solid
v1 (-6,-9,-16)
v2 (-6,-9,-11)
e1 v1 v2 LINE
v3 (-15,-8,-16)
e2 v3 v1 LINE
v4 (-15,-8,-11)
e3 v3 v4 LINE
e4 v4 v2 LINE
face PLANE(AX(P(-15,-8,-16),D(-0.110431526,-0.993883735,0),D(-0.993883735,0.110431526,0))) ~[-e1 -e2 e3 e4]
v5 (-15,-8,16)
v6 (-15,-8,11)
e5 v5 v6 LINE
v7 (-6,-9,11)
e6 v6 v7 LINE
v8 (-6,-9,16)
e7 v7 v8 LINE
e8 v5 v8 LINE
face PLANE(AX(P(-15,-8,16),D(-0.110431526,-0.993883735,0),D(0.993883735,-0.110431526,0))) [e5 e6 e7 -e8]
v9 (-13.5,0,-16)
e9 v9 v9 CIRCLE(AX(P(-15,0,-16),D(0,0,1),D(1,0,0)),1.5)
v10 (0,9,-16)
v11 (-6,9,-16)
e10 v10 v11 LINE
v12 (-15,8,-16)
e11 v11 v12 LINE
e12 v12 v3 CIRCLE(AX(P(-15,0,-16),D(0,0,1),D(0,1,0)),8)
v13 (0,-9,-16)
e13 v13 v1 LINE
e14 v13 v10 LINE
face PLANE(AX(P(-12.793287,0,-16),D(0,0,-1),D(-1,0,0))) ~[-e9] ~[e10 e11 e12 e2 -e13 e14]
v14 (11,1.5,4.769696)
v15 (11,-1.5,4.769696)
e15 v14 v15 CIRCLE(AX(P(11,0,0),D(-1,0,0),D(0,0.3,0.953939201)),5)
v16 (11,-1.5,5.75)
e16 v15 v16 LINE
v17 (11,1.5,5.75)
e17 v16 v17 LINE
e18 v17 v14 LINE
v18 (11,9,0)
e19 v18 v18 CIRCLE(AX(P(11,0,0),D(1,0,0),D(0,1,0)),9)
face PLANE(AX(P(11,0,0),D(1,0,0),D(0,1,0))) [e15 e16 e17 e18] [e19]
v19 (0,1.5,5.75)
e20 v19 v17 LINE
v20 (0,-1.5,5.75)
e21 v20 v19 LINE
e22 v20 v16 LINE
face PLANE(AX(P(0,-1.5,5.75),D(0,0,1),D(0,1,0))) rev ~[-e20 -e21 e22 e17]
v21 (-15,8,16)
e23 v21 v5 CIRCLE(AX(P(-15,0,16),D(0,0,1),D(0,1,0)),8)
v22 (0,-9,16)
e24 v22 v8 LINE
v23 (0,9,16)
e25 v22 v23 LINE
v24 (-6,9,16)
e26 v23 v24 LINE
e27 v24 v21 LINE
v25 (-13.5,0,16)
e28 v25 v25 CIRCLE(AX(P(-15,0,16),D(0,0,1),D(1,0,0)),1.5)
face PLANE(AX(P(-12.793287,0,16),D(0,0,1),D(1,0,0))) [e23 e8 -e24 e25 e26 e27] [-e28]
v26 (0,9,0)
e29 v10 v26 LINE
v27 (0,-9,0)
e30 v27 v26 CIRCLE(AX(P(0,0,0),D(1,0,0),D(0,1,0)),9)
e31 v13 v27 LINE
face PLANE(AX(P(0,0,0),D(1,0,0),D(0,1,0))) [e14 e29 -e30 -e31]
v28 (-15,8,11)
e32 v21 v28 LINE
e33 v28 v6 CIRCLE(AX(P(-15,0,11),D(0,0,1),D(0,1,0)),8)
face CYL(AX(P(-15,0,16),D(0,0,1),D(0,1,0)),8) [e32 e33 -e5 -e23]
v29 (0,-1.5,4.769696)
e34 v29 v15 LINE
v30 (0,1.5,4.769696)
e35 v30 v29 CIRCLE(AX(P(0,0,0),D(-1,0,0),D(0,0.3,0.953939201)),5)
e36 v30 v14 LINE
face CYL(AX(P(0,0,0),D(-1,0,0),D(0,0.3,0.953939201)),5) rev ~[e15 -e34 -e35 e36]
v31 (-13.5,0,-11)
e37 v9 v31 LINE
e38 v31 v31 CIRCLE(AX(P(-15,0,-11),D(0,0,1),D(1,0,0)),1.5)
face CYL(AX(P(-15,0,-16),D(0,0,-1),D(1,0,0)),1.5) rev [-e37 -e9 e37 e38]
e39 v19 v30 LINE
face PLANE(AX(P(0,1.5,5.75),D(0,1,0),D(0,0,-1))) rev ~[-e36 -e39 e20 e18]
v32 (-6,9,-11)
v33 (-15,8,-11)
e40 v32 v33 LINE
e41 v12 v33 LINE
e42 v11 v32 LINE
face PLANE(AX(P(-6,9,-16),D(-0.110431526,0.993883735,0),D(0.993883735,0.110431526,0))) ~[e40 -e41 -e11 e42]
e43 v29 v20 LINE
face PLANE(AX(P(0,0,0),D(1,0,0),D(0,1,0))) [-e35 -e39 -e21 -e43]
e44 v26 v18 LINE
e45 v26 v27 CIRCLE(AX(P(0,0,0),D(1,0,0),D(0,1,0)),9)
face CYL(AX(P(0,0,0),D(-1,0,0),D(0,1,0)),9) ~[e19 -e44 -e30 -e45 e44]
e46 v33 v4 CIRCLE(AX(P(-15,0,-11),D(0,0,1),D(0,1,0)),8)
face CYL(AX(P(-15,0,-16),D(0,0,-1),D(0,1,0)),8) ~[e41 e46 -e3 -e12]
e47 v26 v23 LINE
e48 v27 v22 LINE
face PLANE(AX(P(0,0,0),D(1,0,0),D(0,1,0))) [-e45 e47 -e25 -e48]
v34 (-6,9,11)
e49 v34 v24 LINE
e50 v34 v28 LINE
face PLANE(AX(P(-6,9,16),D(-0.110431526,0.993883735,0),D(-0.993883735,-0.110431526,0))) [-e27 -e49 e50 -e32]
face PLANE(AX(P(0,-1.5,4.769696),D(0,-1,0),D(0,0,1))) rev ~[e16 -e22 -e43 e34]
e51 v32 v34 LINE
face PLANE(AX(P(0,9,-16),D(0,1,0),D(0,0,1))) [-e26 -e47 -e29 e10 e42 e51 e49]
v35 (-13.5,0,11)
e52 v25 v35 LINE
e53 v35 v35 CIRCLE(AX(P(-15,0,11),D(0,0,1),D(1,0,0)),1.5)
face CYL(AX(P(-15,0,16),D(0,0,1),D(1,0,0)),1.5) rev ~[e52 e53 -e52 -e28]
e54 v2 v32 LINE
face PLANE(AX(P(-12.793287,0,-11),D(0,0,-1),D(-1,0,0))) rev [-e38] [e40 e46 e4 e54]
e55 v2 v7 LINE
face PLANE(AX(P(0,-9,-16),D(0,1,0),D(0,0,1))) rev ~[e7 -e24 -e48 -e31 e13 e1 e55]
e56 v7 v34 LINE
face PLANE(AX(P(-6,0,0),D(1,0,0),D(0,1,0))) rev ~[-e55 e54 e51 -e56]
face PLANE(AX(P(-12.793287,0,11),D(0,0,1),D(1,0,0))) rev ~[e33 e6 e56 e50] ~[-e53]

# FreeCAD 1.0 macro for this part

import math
import FreeCAD as App
import Part
import Sketcher
Q = App.Units.Quantity

doc = App.newDocument("Part")
params = doc.addObject("Spreadsheet::Sheet", "Params")
for row, (alias, value) in enumerate([
    ("sketch1_width", "18 mm"),
    ("sketch1_height", "32 mm"),
    ("pad1_length", "6 mm"),
    ("sketch2_diameter", "3 mm"),
    ("sketch2_radius", "8 mm"),
    ("sketch2_height", "18 mm"),
    ("pad2_length", "5 mm"),
    ("sketch3_diameter", "18 mm"),
    ("sketch3_radius", "5 mm"),
    ("sketch3_width", "3 mm"),
    ("pad3_length", "11 mm"),
], start=1):
    params.set(f"A{row}", alias)
    params.set(f"B{row}", "=" + value)
    params.setAlias(f"B{row}", alias)

body = doc.addObject("PartDesign::Body", "Body")

# Sketch on YZ plane
sketch1 = doc.addObject("Sketcher::SketchObject", "Sketch")
body.addObject(sketch1)
sketch1.AttachmentSupport = (doc.YZ_Plane, [""])
sketch1.MapMode = "FlatFace"
sketch1.addGeometry([
    Part.LineSegment(App.Vector(-9, 16, 0), App.Vector(-9, -16, 0)),
    Part.LineSegment(App.Vector(-9, -16, 0), App.Vector(9, -16, 0)),
    Part.LineSegment(App.Vector(9, -16, 0), App.Vector(9, 16, 0)),
    Part.LineSegment(App.Vector(9, 16, 0), App.Vector(-9, 16, 0)),
], False)
sketch1.addConstraint([
    Sketcher.Constraint("Coincident", 0, 2, 1, 1),
    Sketcher.Constraint("Coincident", 1, 2, 2, 1),
    Sketcher.Constraint("Coincident", 2, 2, 3, 1),
    Sketcher.Constraint("Coincident", 3, 2, 0, 1),
    Sketcher.Constraint("Vertical", 0),
    Sketcher.Constraint("Horizontal", 1),
    Sketcher.Constraint("Vertical", 2),
    Sketcher.Constraint("Horizontal", 3),
    Sketcher.Constraint("Symmetric", 0, 2, 2, 2, -1, 1),
    Sketcher.Constraint("DistanceX", 1, 1, 1, 2, Q("18 mm")),
    Sketcher.Constraint("DistanceY", 0, 2, 0, 1, Q("32 mm")),
])
sketch1.setExpression("Constraints[9]", "Params.sketch1_width")
sketch1.setExpression("Constraints[10]", "Params.sketch1_height")
pad1 = doc.addObject("PartDesign::Pad", "Pad")
body.addObject(pad1)
pad1.Profile = sketch1
pad1.setExpression("Length", "Params.pad1_length")
pad1.Reversed = True

# Sketch on XY plane
sketch2 = doc.addObject("Sketcher::SketchObject", "Sketch001")
body.addObject(sketch2)
sketch2.AttachmentSupport = (doc.XY_Plane, [""])
sketch2.MapMode = "FlatFace"
sketch2.AttachmentOffset = App.Placement(App.Vector(0, 0, 16), App.Rotation())
sketch2.addGeometry([
    Part.LineSegment(App.Vector(-6, 9, 0), App.Vector(-15, 8, 0)),  # 0
    Part.ArcOfCircle(Part.Circle(App.Vector(-15, 0, 0), App.Vector(0, 0, 1), 8), math.radians(90), math.radians(270)),  # 1
    Part.LineSegment(App.Vector(-15, -8, 0), App.Vector(-6, -9, 0)),  # 2
    Part.LineSegment(App.Vector(-6, -9, 0), App.Vector(-6, 9, 0)),  # 3
    Part.Circle(App.Vector(-15, 0, 0), App.Vector(0, 0, 1), 1.5),  # 4
], False)
sketch2.addConstraint([
    Sketcher.Constraint("Coincident", 0, 2, 1, 1),
    Sketcher.Constraint("Coincident", 1, 2, 2, 1),
    Sketcher.Constraint("Coincident", 2, 2, 3, 1),
    Sketcher.Constraint("Coincident", 3, 2, 0, 1),
    Sketcher.Constraint("Vertical", 3),
    Sketcher.Constraint("Coincident", 4, 3, 1, 3),
    Sketcher.Constraint("Symmetric", 0, 2, 1, 2, -1),
    Sketcher.Constraint("Vertical", 4, 3, 0, 2),
    Sketcher.Constraint("Equal", 0, 2),
    Sketcher.Constraint("Diameter", 4, Q("3 mm")),
    Sketcher.Constraint("Radius", 1, Q("8 mm")),
    Sketcher.Constraint("DistanceY", 3, 1, 3, 2, Q("18 mm")),
    Sketcher.Constraint("DistanceX", 1, 3, -1, 1, Q("15 mm")),
    Sketcher.Constraint("DistanceX", 2, 2, -1, 1, Q("6 mm")),
])
sketch2.setExpression("Constraints[9]", "Params.sketch2_diameter")
sketch2.setExpression("Constraints[10]", "Params.sketch2_radius")
sketch2.setExpression("Constraints[11]", "Params.sketch2_height")
pad2 = doc.addObject("PartDesign::Pad", "Pad001")
body.addObject(pad2)
pad2.Profile = sketch2
pad2.setExpression("Length", "Params.pad2_length")
pad2.Reversed = True
body2 = doc.addObject("PartDesign::Body", "Body001")
doc.recompute()

body2.BaseFeature = body
doc.recompute()

mirroring = doc.addObject("Part::Mirroring", "Mirroring")
mirroring.Source = body
mirroring.Base = App.Vector(0, 0, 0)
mirroring.Normal = App.Vector(0, 0, 1)
body3 = doc.addObject("PartDesign::Body", "Body002")
body3.BaseFeature = mirroring
boolean = doc.addObject("PartDesign::Boolean", "Boolean")
body2.addObject(boolean)
boolean.Type = "Fuse"
boolean.addObjects([body3])
doc.recompute()

# Sketch on YZ plane
sketch3 = doc.addObject("Sketcher::SketchObject", "Sketch002")
body2.addObject(sketch3)
sketch3.AttachmentSupport = (doc.getObject("YZ_Plane001"), [""])
sketch3.MapMode = "FlatFace"
sketch3.addGeometry([
    Part.Circle(App.Vector(0, 0, 0), App.Vector(0, 0, 1), 9),  # 0
    Part.LineSegment(App.Vector(1.5, 5.8, 0), App.Vector(1.5, 4.8, 0)),  # 1
    Part.ArcOfCircle(Part.Circle(App.Vector(0, 0, 0), App.Vector(0, 0, 1), 5), math.radians(107), math.radians(433)),  # 2
    Part.LineSegment(App.Vector(-1.5, 4.8, 0), App.Vector(-1.5, 5.8, 0)),  # 3
    Part.LineSegment(App.Vector(-1.5, 5.8, 0), App.Vector(1.5, 5.8, 0)),  # 4
], False)
sketch3.addConstraint([
    Sketcher.Constraint("Coincident", 1, 2, 2, 2),
    Sketcher.Constraint("Coincident", 2, 1, 3, 1),
    Sketcher.Constraint("Coincident", 3, 2, 4, 1),
    Sketcher.Constraint("Coincident", 4, 2, 1, 1),
    Sketcher.Constraint("Vertical", 1),
    Sketcher.Constraint("Vertical", 3),
    Sketcher.Constraint("Horizontal", 4),
    Sketcher.Constraint("Coincident", 0, 3, -1, 1),
    Sketcher.Constraint("Coincident", 2, 3, -1, 1),
    Sketcher.Constraint("Horizontal", 1, 2, 2, 1),
    Sketcher.Constraint("Diameter", 0, Q("18 mm")),
    Sketcher.Constraint("Radius", 2, Q("5 mm")),
    Sketcher.Constraint("DistanceX", 4, 1, 4, 2, Q("3 mm")),
    Sketcher.Constraint("DistanceY", -1, 1, 3, 2, Q("5.75 mm")),
])
sketch3.setExpression("Constraints[10]", "Params.sketch3_diameter")
sketch3.setExpression("Constraints[11]", "Params.sketch3_radius")
sketch3.setExpression("Constraints[12]", "Params.sketch3_width")
pad3 = doc.addObject("PartDesign::Pad", "Pad002")
body2.addObject(pad3)
pad3.Profile = sketch3
pad3.setExpression("Length", "Params.pad3_length")
mirroring.Visibility = False

doc.recompute()
